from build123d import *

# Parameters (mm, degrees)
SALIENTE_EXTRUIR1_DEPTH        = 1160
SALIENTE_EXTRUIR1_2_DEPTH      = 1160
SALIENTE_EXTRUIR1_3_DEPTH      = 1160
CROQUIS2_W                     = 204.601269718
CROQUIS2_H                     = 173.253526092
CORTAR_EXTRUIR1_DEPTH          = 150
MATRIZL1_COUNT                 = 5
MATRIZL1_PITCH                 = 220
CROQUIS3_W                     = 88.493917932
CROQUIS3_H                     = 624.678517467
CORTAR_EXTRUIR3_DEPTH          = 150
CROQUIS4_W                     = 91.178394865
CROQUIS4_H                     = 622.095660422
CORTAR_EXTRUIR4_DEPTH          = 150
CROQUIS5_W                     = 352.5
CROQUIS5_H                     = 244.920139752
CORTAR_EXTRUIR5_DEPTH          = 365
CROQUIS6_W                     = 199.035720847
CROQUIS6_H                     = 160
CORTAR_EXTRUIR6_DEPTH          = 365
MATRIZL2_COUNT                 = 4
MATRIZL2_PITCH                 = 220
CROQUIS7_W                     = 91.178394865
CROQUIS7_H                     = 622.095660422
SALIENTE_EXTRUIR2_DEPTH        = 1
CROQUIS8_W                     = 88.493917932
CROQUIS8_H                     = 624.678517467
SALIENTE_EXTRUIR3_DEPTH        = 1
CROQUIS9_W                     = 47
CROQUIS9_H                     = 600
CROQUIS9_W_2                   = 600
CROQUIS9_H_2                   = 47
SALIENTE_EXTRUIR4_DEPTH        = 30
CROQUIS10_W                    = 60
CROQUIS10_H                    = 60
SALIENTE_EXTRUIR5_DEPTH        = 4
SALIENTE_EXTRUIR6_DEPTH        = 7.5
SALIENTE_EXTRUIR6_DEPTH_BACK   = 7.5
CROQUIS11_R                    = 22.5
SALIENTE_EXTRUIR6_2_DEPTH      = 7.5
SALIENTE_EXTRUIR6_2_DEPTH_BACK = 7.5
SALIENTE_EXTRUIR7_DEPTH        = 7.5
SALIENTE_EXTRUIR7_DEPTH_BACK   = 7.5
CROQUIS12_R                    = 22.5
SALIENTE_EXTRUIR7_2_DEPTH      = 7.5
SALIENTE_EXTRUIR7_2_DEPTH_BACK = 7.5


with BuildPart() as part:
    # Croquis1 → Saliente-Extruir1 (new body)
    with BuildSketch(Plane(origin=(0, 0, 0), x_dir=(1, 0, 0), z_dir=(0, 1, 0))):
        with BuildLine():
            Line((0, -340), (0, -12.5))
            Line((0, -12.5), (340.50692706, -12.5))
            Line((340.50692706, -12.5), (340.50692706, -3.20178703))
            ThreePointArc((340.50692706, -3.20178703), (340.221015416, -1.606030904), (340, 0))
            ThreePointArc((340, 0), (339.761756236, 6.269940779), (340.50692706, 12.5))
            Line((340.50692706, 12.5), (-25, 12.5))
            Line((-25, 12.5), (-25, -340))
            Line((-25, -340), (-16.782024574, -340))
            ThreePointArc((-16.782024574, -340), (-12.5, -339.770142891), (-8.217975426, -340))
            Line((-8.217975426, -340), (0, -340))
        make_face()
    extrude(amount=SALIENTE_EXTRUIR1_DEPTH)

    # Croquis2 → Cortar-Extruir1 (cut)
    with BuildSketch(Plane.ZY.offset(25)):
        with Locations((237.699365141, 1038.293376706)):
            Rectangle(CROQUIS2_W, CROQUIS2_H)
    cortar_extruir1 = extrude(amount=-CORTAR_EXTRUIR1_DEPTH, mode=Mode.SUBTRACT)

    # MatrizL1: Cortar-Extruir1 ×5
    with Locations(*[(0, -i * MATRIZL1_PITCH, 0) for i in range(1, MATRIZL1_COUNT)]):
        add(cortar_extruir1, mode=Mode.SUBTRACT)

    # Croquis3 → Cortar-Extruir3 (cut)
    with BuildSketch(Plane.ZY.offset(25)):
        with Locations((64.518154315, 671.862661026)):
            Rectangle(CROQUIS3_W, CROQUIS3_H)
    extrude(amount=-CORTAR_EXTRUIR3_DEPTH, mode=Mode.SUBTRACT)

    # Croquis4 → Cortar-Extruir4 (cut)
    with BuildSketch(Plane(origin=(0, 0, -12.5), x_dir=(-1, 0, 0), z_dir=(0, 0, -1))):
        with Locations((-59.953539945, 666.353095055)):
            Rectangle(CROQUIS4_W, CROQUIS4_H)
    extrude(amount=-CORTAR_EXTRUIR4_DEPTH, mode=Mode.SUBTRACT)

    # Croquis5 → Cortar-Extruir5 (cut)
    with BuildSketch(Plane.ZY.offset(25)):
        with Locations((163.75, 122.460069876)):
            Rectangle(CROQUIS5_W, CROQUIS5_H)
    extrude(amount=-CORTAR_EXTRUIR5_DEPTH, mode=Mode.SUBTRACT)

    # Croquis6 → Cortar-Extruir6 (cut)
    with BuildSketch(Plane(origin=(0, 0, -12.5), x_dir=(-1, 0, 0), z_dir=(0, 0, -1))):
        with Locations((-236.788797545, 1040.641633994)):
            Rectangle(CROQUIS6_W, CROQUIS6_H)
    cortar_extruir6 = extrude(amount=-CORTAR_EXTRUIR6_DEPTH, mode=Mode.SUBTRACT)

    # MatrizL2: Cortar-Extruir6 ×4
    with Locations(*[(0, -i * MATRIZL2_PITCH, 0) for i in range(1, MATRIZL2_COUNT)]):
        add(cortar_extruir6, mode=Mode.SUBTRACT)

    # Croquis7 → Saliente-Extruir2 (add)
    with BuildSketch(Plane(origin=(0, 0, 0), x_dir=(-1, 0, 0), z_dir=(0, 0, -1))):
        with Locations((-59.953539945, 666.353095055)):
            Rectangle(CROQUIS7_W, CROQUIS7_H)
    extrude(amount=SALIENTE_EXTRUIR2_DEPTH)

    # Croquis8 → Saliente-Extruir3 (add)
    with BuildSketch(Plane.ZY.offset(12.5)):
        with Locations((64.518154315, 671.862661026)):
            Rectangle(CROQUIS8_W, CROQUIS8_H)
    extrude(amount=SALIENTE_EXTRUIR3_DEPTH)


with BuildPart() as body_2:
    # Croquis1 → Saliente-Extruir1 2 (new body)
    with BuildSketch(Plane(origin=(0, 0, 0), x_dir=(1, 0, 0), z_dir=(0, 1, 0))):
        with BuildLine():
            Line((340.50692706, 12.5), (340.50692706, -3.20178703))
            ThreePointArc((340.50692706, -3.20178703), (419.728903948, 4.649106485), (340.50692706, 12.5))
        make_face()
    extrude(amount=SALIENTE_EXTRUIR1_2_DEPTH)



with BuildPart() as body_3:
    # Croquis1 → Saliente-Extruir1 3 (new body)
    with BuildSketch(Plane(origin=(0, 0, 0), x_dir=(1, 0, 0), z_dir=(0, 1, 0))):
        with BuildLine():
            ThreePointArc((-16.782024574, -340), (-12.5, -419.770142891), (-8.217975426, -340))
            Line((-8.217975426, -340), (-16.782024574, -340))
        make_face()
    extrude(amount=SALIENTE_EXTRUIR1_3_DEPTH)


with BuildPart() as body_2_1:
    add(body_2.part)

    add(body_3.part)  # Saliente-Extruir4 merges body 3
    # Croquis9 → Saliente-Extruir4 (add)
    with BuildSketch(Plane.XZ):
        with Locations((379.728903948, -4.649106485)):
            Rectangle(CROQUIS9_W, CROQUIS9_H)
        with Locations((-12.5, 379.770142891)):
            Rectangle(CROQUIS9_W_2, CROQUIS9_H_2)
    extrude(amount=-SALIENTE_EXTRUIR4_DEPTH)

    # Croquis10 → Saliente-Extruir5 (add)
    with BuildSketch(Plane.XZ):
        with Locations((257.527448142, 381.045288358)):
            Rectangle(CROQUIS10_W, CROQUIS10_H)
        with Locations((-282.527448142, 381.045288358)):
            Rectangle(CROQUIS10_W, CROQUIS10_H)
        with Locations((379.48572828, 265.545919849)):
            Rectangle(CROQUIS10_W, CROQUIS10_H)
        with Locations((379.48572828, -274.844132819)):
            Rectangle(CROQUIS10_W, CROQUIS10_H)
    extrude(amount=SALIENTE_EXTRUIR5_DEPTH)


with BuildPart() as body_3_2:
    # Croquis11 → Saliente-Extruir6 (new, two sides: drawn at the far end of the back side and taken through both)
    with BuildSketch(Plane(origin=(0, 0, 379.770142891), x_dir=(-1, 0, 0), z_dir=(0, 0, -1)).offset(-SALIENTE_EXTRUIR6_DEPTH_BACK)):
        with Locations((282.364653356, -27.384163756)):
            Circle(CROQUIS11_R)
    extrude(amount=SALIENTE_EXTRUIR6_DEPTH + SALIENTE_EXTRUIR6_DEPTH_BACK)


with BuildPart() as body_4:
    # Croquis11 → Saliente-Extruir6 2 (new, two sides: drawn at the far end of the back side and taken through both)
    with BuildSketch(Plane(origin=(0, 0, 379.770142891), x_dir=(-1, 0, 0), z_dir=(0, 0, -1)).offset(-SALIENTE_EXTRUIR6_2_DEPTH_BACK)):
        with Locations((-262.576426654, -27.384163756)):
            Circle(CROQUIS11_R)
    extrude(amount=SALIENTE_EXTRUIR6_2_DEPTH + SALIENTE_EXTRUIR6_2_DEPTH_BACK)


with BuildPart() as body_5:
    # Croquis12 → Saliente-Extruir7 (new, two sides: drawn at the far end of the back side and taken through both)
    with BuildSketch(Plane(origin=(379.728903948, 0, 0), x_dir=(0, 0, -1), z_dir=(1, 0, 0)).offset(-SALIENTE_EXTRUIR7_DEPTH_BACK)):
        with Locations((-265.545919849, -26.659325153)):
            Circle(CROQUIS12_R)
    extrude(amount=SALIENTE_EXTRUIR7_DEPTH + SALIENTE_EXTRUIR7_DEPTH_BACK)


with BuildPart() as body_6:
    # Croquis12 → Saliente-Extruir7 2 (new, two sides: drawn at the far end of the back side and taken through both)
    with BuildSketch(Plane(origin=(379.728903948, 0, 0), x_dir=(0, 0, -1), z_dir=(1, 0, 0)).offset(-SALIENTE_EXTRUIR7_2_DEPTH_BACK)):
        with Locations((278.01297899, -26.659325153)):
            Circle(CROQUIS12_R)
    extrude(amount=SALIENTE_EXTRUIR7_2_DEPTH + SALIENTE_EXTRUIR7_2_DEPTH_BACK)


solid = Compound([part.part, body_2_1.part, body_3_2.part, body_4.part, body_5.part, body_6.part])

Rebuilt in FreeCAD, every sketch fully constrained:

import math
import FreeCAD as App
import Part
import Sketcher
Q = App.Units.Quantity


def add_polygon(sketch, points):
    """Adds a closed chain of lines whose ends are joined by coincident constraints."""
    first, n = sketch.GeometryCount, len(points)
    for a, b in zip(points, points[1:] + points[:1]):
        sketch.addGeometry(Part.LineSegment(App.Vector(*a, 0), App.Vector(*b, 0)), False)
    for i in range(n):
        sketch.addConstraint(Sketcher.Constraint("Coincident", first + i, 2, first + (i + 1) % n, 1))

doc = App.newDocument("Part")
params = doc.addObject("Spreadsheet::Sheet", "Params")
for row, (alias, value) in enumerate([
    ("sketch1_radius", "40 mm"),
    ("sketch1_height", "327.5 mm"),
    ("sketch1_height2", "352.5 mm"),
    ("pad1_length", "1160 mm"),
    ("pocket1_length", "150 mm"),
    ("linearpattern_pitch", "220 mm"),
    ("pocket2_length", "150 mm"),
    ("pocket3_length", "150 mm"),
    ("sketch5_height", "352.5 mm"),
    ("pocket4_length", "365 mm"),
    ("sketch6_height", "160 mm"),
    ("pocket5_length", "365 mm"),
    ("linearpattern2_pitch", "220 mm"),
    ("pad2_length", "1 mm"),
    ("pad3_length", "1 mm"),
    ("sketch9_radius", "40 mm"),
    ("pad4_length", "1160 mm"),
    ("sketch10_radius", "40 mm"),
    ("pad5_length", "1160 mm"),
    ("sketch11_width", "47 mm"),
    ("sketch11_width2", "600 mm"),
    ("pad6_length", "30 mm"),
    ("sketch12_width", "60 mm"),
    ("pad7_length", "4 mm"),
    ("sketch13_diameter", "45 mm"),
    ("pad8_length", "7.5 mm"),
    ("pad8_length2", "7.5 mm"),
    ("sketch14_diameter", "45 mm"),
    ("pad9_length", "7.5 mm"),
    ("pad9_length2", "7.5 mm"),
    ("sketch15_diameter", "45 mm"),
    ("pad10_length", "7.5 mm"),
    ("pad10_length2", "7.5 mm"),
    ("sketch16_diameter", "45 mm"),
    ("pad11_length", "7.5 mm"),
    ("pad11_length2", "7.5 mm"),
], start=1):
    params.set(f"A{row}", alias)
    params.set(f"B{row}", "=" + value)
    params.setAlias(f"B{row}", alias)

body = doc.addObject("PartDesign::Body", "Body")

sketch1 = body.newObject("Sketcher::SketchObject", "Sketch")
sketch1.AttachmentSupport = (doc.getObject("XZ_Plane"), [""])
sketch1.MapMode = "FlatFace"
sketch1.addGeometry(Part.LineSegment(App.Vector(0, 340, 0), App.Vector(0, 12.5, 0)), False)
sketch1.addGeometry(Part.LineSegment(App.Vector(0, 12.5, 0), App.Vector(340.506927, 12.5, 0)), False)
sketch1.addGeometry(Part.LineSegment(App.Vector(340.506927, 12.5, 0), App.Vector(340.506927, 3.201787, 0)), False)
sketch1.addGeometry(Part.ArcOfCircle(Part.Circle(App.Vector(379.728904, -4.649106, 0), App.Vector(0, 0, 1), 40), math.radians(168.68094), math.radians(173.32556)), False)
sketch1.addGeometry(Part.ArcOfCircle(Part.Circle(App.Vector(379.728904, -4.649106, 0), App.Vector(0, 0, 1), 40), math.radians(173.32556), math.radians(191.31906)), False)
sketch1.addGeometry(Part.LineSegment(App.Vector(340.506927, -12.5, 0), App.Vector(-25, -12.5, 0)), False)
sketch1.addGeometry(Part.LineSegment(App.Vector(-25, -12.5, 0), App.Vector(-25, 340, 0)), False)
sketch1.addGeometry(Part.LineSegment(App.Vector(-25, 340, 0), App.Vector(-16.782025, 340, 0)), False)
sketch1.addGeometry(Part.ArcOfCircle(Part.Circle(App.Vector(-12.5, 379.770143, 0), App.Vector(0, 0, 1), 40), math.radians(-96.145324), math.radians(-83.854676)), False)
sketch1.addGeometry(Part.LineSegment(App.Vector(-8.217975, 340, 0), App.Vector(0, 340, 0)), False)
sketch1.addConstraint(Sketcher.Constraint("Coincident", 0, 2, 1, 1))
sketch1.addConstraint(Sketcher.Constraint("Coincident", 1, 2, 2, 1))
sketch1.addConstraint(Sketcher.Constraint("Coincident", 2, 2, 3, 1))
sketch1.addConstraint(Sketcher.Constraint("Tangent", 3, 2, 4, 1))
sketch1.addConstraint(Sketcher.Constraint("Coincident", 4, 2, 5, 1))
sketch1.addConstraint(Sketcher.Constraint("Coincident", 5, 2, 6, 1))
sketch1.addConstraint(Sketcher.Constraint("Coincident", 6, 2, 7, 1))
sketch1.addConstraint(Sketcher.Constraint("Coincident", 7, 2, 8, 1))
sketch1.addConstraint(Sketcher.Constraint("Coincident", 8, 2, 9, 1))
sketch1.addConstraint(Sketcher.Constraint("Coincident", 9, 2, 0, 1))
sketch1.addConstraint(Sketcher.Constraint("Vertical", 0))
sketch1.addConstraint(Sketcher.Constraint("Horizontal", 1))
sketch1.addConstraint(Sketcher.Constraint("Vertical", 2))
sketch1.addConstraint(Sketcher.Constraint("Horizontal", 5))
sketch1.addConstraint(Sketcher.Constraint("Vertical", 6))
sketch1.addConstraint(Sketcher.Constraint("Horizontal", 7))
sketch1.addConstraint(Sketcher.Constraint("Horizontal", 9))
sketch1.addConstraint(Sketcher.Constraint("Equal", 3, 4))
sketch1.addConstraint(Sketcher.Constraint("Equal", 4, 8))
sketch1.addConstraint(Sketcher.Constraint("Symmetric", 1, 2, 4, 2, -1))
sketch1.addConstraint(Sketcher.Constraint("PointOnObject", 0, 2, -2))
sketch1.addConstraint(Sketcher.Constraint("PointOnObject", 3, 2, -1))
sketch1.addConstraint(Sketcher.Constraint("Horizontal", 7, 2, 8, 2))
sketch1.addConstraint(Sketcher.Constraint("Equal", 7, 9))
sketch1.addConstraint(Sketcher.Constraint("Radius", 3, Q("40 mm")))
sketch1.addConstraint(Sketcher.Constraint("DistanceY", 0, 2, 0, 1, Q("327.5 mm")))
sketch1.addConstraint(Sketcher.Constraint("DistanceY", 6, 1, 6, 2, Q("352.5 mm")))
sketch1.addConstraint(Sketcher.Constraint("DistanceX", -1, 1, 3, 2, Q("340 mm")))
sketch1.addConstraint(Sketcher.Constraint("DistanceX", 5, 2, -1, 1, Q("25 mm")))
sketch1.addConstraint(Sketcher.Constraint("DistanceX", 1, 1, 1, 2, Q("340.506927 mm")))
sketch1.addConstraint(Sketcher.Constraint("DistanceX", 7, 1, 7, 2, Q("8.217975 mm")))
sketch1.setExpression("Constraints[24]", "Params.sketch1_radius")
sketch1.setExpression("Constraints[25]", "Params.sketch1_height")
sketch1.setExpression("Constraints[26]", "Params.sketch1_height2")
pad1 = body.newObject("PartDesign::Pad", "Pad")
pad1.Profile = sketch1
pad1.setExpression("Length", "Params.pad1_length")
pad1.Reversed = True

sketch2 = body.newObject("Sketcher::SketchObject", "Sketch001")
sketch2.AttachmentSupport = (doc.getObject("YZ_Plane"), [""])
sketch2.MapMode = "FlatFace"
sketch2.AttachmentOffset = App.Placement(App.Vector(0, 0, -25), App.Rotation())
add_polygon(sketch2, [(1124.92014, 135.39873), (951.666614, 135.39873), (951.666614, 340), (1124.92014, 340)])
sketch2.addConstraint(Sketcher.Constraint("Horizontal", 0))
sketch2.addConstraint(Sketcher.Constraint("Vertical", 1))
sketch2.addConstraint(Sketcher.Constraint("Horizontal", 2))
sketch2.addConstraint(Sketcher.Constraint("Vertical", 3))
sketch2.addConstraint(Sketcher.Constraint("DistanceY", -1, 1, 1, 2, Q("340 mm")))
sketch2.addConstraint(Sketcher.Constraint("DistanceY", 1, 1, 1, 2, Q("204.60127 mm")))
sketch2.addConstraint(Sketcher.Constraint("DistanceX", 0, 2, 0, 1, Q("173.253526 mm")))
sketch2.addConstraint(Sketcher.Constraint("DistanceX", -1, 1, 2, 2, Q("1124.92014 mm")))
pocket1 = body.newObject("PartDesign::Pocket", "Pocket")
pocket1.Profile = sketch2
pocket1.setExpression("Length", "Params.pocket1_length")
pocket1.Reversed = True
doc.recompute()

linearpattern = body.newObject("PartDesign::LinearPattern", "LinearPattern")
linearpattern.Originals = [pocket1]
linearpattern.Direction = (doc.getObject("Y_Axis"), [""])
linearpattern.Mode = "offset"
linearpattern.setExpression("Offset", "Params.linearpattern_pitch")
linearpattern.Occurrences = 5
linearpattern.Reversed = True
body.Tip = linearpattern

sketch3 = body.newObject("Sketcher::SketchObject", "Sketch002")
sketch3.AttachmentSupport = (doc.getObject("YZ_Plane"), [""])
sketch3.MapMode = "FlatFace"
sketch3.AttachmentOffset = App.Placement(App.Vector(0, 0, -25), App.Rotation())
add_polygon(sketch3, [(984.20192, 20.271195), (359.523402, 20.271195), (359.523402, 108.765113), (984.20192, 108.765113)])
sketch3.addConstraint(Sketcher.Constraint("Horizontal", 0))
sketch3.addConstraint(Sketcher.Constraint("Vertical", 1))
sketch3.addConstraint(Sketcher.Constraint("Horizontal", 2))
sketch3.addConstraint(Sketcher.Constraint("Vertical", 3))
sketch3.addConstraint(Sketcher.Constraint("DistanceX", 0, 2, 0, 1, Q("624.678517 mm")))
sketch3.addConstraint(Sketcher.Constraint("DistanceY", 1, 1, 1, 2, Q("88.493918 mm")))
sketch3.addConstraint(Sketcher.Constraint("DistanceX", -1, 1, 2, 2, Q("984.20192 mm")))
sketch3.addConstraint(Sketcher.Constraint("DistanceY", -1, 1, 0, 2, Q("20.271195 mm")))
pocket2 = body.newObject("PartDesign::Pocket", "Pocket001")
pocket2.Profile = sketch3
pocket2.setExpression("Length", "Params.pocket2_length")
pocket2.Reversed = True

sketch4 = body.newObject("Sketcher::SketchObject", "Sketch003")
sketch4.AttachmentSupport = (doc.getObject("XY_Plane"), [""])
sketch4.MapMode = "FlatFace"
sketch4.AttachmentOffset = App.Placement(App.Vector(0, 0, -12.5), App.Rotation())
add_polygon(sketch4, [(105.542737, 977.400925), (105.542737, 355.305265), (14.364343, 355.305265), (14.364343, 977.400925)])
sketch4.addConstraint(Sketcher.Constraint("Vertical", 0))
sketch4.addConstraint(Sketcher.Constraint("Horizontal", 1))
sketch4.addConstraint(Sketcher.Constraint("Vertical", 2))
sketch4.addConstraint(Sketcher.Constraint("Horizontal", 3))
sketch4.addConstraint(Sketcher.Constraint("DistanceY", 0, 2, 0, 1, Q("622.09566 mm")))
sketch4.addConstraint(Sketcher.Constraint("DistanceX", 1, 2, 1, 1, Q("91.178395 mm")))
sketch4.addConstraint(Sketcher.Constraint("DistanceX", -1, 1, 0, 2, Q("105.542737 mm")))
sketch4.addConstraint(Sketcher.Constraint("DistanceY", -1, 1, 0, 2, Q("355.305265 mm")))
pocket3 = body.newObject("PartDesign::Pocket", "Pocket002")
pocket3.Profile = sketch4
pocket3.setExpression("Length", "Params.pocket3_length")
pocket3.Reversed = True

sketch5 = body.newObject("Sketcher::SketchObject", "Sketch004")
sketch5.AttachmentSupport = (doc.getObject("YZ_Plane"), [""])
sketch5.MapMode = "FlatFace"
sketch5.AttachmentOffset = App.Placement(App.Vector(0, 0, -25), App.Rotation())
add_polygon(sketch5, [(244.92014, -12.5), (0, -12.5), (0, 340), (244.92014, 340)])
sketch5.addConstraint(Sketcher.Constraint("Horizontal", 0))
sketch5.addConstraint(Sketcher.Constraint("Vertical", 1))
sketch5.addConstraint(Sketcher.Constraint("Horizontal", 2))
sketch5.addConstraint(Sketcher.Constraint("Vertical", 3))
sketch5.addConstraint(Sketcher.Constraint("PointOnObject", 0, 2, -2))
sketch5.addConstraint(Sketcher.Constraint("DistanceY", 1, 1, 1, 2, Q("352.5 mm")))
sketch5.addConstraint(Sketcher.Constraint("DistanceY", -1, 1, 1, 2, Q("340 mm")))
sketch5.addConstraint(Sketcher.Constraint("DistanceX", 0, 2, 0, 1, Q("244.92014 mm")))
sketch5.setExpression("Constraints[9]", "Params.sketch5_height")
pocket4 = body.newObject("PartDesign::Pocket", "Pocket003")
pocket4.Profile = sketch5
pocket4.setExpression("Length", "Params.pocket4_length")
pocket4.Reversed = True

sketch6 = body.newObject("Sketcher::SketchObject", "Sketch005")
sketch6.AttachmentSupport = (doc.getObject("XY_Plane"), [""])
sketch6.MapMode = "FlatFace"
sketch6.AttachmentOffset = App.Placement(App.Vector(0, 0, -12.5), App.Rotation())
add_polygon(sketch6, [(336.306658, 1120.641634), (336.306658, 960.641634), (137.270937, 960.641634), (137.270937, 1120.641634)])
sketch6.addConstraint(Sketcher.Constraint("Vertical", 0))
sketch6.addConstraint(Sketcher.Constraint("Horizontal", 1))
sketch6.addConstraint(Sketcher.Constraint("Vertical", 2))
sketch6.addConstraint(Sketcher.Constraint("Horizontal", 3))
sketch6.addConstraint(Sketcher.Constraint("DistanceY", 0, 2, 0, 1, Q("160 mm")))
sketch6.addConstraint(Sketcher.Constraint("DistanceX", 1, 2, 1, 1, Q("199.035721 mm")))
sketch6.addConstraint(Sketcher.Constraint("DistanceX", -1, 1, 0, 2, Q("336.306658 mm")))
sketch6.addConstraint(Sketcher.Constraint("DistanceY", -1, 1, 0, 2, Q("960.641634 mm")))
sketch6.setExpression("Constraints[8]", "Params.sketch6_height")
pocket5 = body.newObject("PartDesign::Pocket", "Pocket004")
pocket5.Profile = sketch6
pocket5.setExpression("Length", "Params.pocket5_length")
pocket5.Reversed = True
doc.recompute()

linearpattern2 = body.newObject("PartDesign::LinearPattern", "LinearPattern001")
linearpattern2.Originals = [pocket5]
linearpattern2.Direction = (doc.getObject("Y_Axis"), [""])
linearpattern2.Mode = "offset"
linearpattern2.setExpression("Offset", "Params.linearpattern2_pitch")
linearpattern2.Occurrences = 4
linearpattern2.Reversed = True
body.Tip = linearpattern2

sketch7 = body.newObject("Sketcher::SketchObject", "Sketch006")
sketch7.AttachmentSupport = (doc.getObject("XY_Plane"), [""])
sketch7.MapMode = "FlatFace"
add_polygon(sketch7, [(105.542737, 977.400925), (105.542737, 355.305265), (14.364343, 355.305265), (14.364343, 977.400925)])
sketch7.addConstraint(Sketcher.Constraint("Vertical", 0))
sketch7.addConstraint(Sketcher.Constraint("Horizontal", 1))
sketch7.addConstraint(Sketcher.Constraint("Vertical", 2))
sketch7.addConstraint(Sketcher.Constraint("Horizontal", 3))
sketch7.addConstraint(Sketcher.Constraint("DistanceY", 0, 2, 0, 1, Q("622.09566 mm")))
sketch7.addConstraint(Sketcher.Constraint("DistanceX", 1, 2, 1, 1, Q("91.178395 mm")))
sketch7.addConstraint(Sketcher.Constraint("DistanceX", -1, 1, 0, 2, Q("105.542737 mm")))
sketch7.addConstraint(Sketcher.Constraint("DistanceY", -1, 1, 0, 2, Q("355.305265 mm")))
pad2 = body.newObject("PartDesign::Pad", "Pad001")
pad2.Profile = sketch7
pad2.setExpression("Length", "Params.pad2_length")
pad2.Reversed = True

sketch8 = body.newObject("Sketcher::SketchObject", "Sketch007")
sketch8.AttachmentSupport = (doc.getObject("YZ_Plane"), [""])
sketch8.MapMode = "FlatFace"
sketch8.AttachmentOffset = App.Placement(App.Vector(0, 0, -12.5), App.Rotation())
add_polygon(sketch8, [(984.20192, 20.271195), (359.523402, 20.271195), (359.523402, 108.765113), (984.20192, 108.765113)])
sketch8.addConstraint(Sketcher.Constraint("Horizontal", 0))
sketch8.addConstraint(Sketcher.Constraint("Vertical", 1))
sketch8.addConstraint(Sketcher.Constraint("Horizontal", 2))
sketch8.addConstraint(Sketcher.Constraint("Vertical", 3))
sketch8.addConstraint(Sketcher.Constraint("DistanceX", 0, 2, 0, 1, Q("624.678517 mm")))
sketch8.addConstraint(Sketcher.Constraint("DistanceY", 1, 1, 1, 2, Q("88.493918 mm")))
sketch8.addConstraint(Sketcher.Constraint("DistanceX", -1, 1, 2, 2, Q("984.20192 mm")))
sketch8.addConstraint(Sketcher.Constraint("DistanceY", -1, 1, 0, 2, Q("20.271195 mm")))
pad3 = body.newObject("PartDesign::Pad", "Pad002")
pad3.Profile = sketch8
pad3.setExpression("Length", "Params.pad3_length")
pad3.Reversed = True
body2 = doc.addObject("PartDesign::Body", "Body001")

sketch9 = body2.newObject("Sketcher::SketchObject", "Sketch008")
sketch9.AttachmentSupport = (doc.getObject("XZ_Plane001"), [""])
sketch9.MapMode = "FlatFace"
sketch9.addGeometry(Part.LineSegment(App.Vector(340.506927, -12.5, 0), App.Vector(340.506927, 3.201787, 0)), False)
sketch9.addGeometry(Part.ArcOfCircle(Part.Circle(App.Vector(379.728904, -4.649106, 0), App.Vector(0, 0, 1), 40), math.radians(-168.68094), math.radians(168.68094)), False)
sketch9.addConstraint(Sketcher.Constraint("Coincident", 0, 1, 1, 1))
sketch9.addConstraint(Sketcher.Constraint("Coincident", 1, 2, 0, 2))
sketch9.addConstraint(Sketcher.Constraint("Vertical", 0))
sketch9.addConstraint(Sketcher.Constraint("Radius", 1, Q("40 mm")))
sketch9.addConstraint(Sketcher.Constraint("DistanceY", 0, 1, -1, 1, Q("12.5 mm")))
sketch9.addConstraint(Sketcher.Constraint("DistanceY", 0, 1, 0, 2, Q("15.701787 mm")))
sketch9.addConstraint(Sketcher.Constraint("DistanceX", -1, 1, 1, 3, Q("379.728904 mm")))
sketch9.setExpression("Constraints[3]", "Params.sketch9_radius")
pad4 = body2.newObject("PartDesign::Pad", "Pad003")
pad4.Profile = sketch9
pad4.setExpression("Length", "Params.pad4_length")
pad4.Reversed = True
body3 = doc.addObject("PartDesign::Body", "Body002")

sketch10 = body3.newObject("Sketcher::SketchObject", "Sketch009")
sketch10.AttachmentSupport = (doc.getObject("XZ_Plane002"), [""])
sketch10.MapMode = "FlatFace"
sketch10.addGeometry(Part.ArcOfCircle(Part.Circle(App.Vector(-12.5, 379.770143, 0), App.Vector(0, 0, 1), 40), math.radians(-83.854676), math.radians(263.854676)), False)
sketch10.addGeometry(Part.LineSegment(App.Vector(-8.217975, 340, 0), App.Vector(-16.782025, 340, 0)), False)
sketch10.addConstraint(Sketcher.Constraint("Coincident", 0, 1, 1, 1))
sketch10.addConstraint(Sketcher.Constraint("Coincident", 1, 2, 0, 2))
sketch10.addConstraint(Sketcher.Constraint("Horizontal", 1))
sketch10.addConstraint(Sketcher.Constraint("Radius", 0, Q("40 mm")))
sketch10.addConstraint(Sketcher.Constraint("DistanceY", -1, 1, 0, 1, Q("340 mm")))
sketch10.addConstraint(Sketcher.Constraint("DistanceX", 0, 3, -1, 1, Q("12.5 mm")))
sketch10.addConstraint(Sketcher.Constraint("DistanceX", 1, 2, 1, 1, Q("8.564049 mm")))
sketch10.setExpression("Constraints[3]", "Params.sketch10_radius")
pad5 = body3.newObject("PartDesign::Pad", "Pad004")
pad5.Profile = sketch10
pad5.setExpression("Length", "Params.pad5_length")
pad5.Reversed = True
body2.AllowCompound = True
doc.recompute()

boolean = body2.newObject("PartDesign::Boolean", "Boolean")
boolean.Type = "Fuse"
boolean.addObjects([body3])

sketch11 = body2.newObject("Sketcher::SketchObject", "Sketch010")
sketch11.AttachmentSupport = (doc.getObject("XZ_Plane001"), [""])
sketch11.MapMode = "FlatFace"
add_polygon(sketch11, [(356.228904, 295.350894), (356.228904, -304.649106), (403.228904, -304.649106), (403.228904, 295.350894)])
add_polygon(sketch11, [(-312.5, 403.270143), (-312.5, 356.270143), (287.5, 356.270143), (287.5, 403.270143)])
sketch11.addConstraint(Sketcher.Constraint("Vertical", 0))
sketch11.addConstraint(Sketcher.Constraint("Horizontal", 1))
sketch11.addConstraint(Sketcher.Constraint("Vertical", 2))
sketch11.addConstraint(Sketcher.Constraint("Horizontal", 3))
sketch11.addConstraint(Sketcher.Constraint("Vertical", 4))
sketch11.addConstraint(Sketcher.Constraint("Horizontal", 5))
sketch11.addConstraint(Sketcher.Constraint("Vertical", 6))
sketch11.addConstraint(Sketcher.Constraint("Horizontal", 7))
sketch11.addConstraint(Sketcher.Constraint("Equal", 7, 0))
sketch11.addConstraint(Sketcher.Constraint("Equal", 3, 4))
sketch11.addConstraint(Sketcher.Constraint("DistanceX", 1, 1, 1, 2, Q("47 mm")))
sketch11.addConstraint(Sketcher.Constraint("DistanceX", 5, 1, 5, 2, Q("600 mm")))
sketch11.addConstraint(Sketcher.Constraint("DistanceX", 4, 2, -1, 1, Q("312.5 mm")))
sketch11.addConstraint(Sketcher.Constraint("DistanceY", 3, 2, 4, 2, Q("60.919249 mm")))
sketch11.addConstraint(Sketcher.Constraint("DistanceX", -1, 1, 0, 2, Q("356.228904 mm")))
sketch11.addConstraint(Sketcher.Constraint("DistanceY", 0, 2, -1, 1, Q("304.649106 mm")))
sketch11.setExpression("Constraints[18]", "Params.sketch11_width")
sketch11.setExpression("Constraints[19]", "Params.sketch11_width2")
pad6 = body2.newObject("PartDesign::Pad", "Pad005")
pad6.Profile = sketch11
pad6.setExpression("Length", "Params.pad6_length")
pad6.Reversed = True

sketch12 = body2.newObject("Sketcher::SketchObject", "Sketch011")
sketch12.AttachmentSupport = (doc.getObject("XZ_Plane001"), [""])
sketch12.MapMode = "FlatFace"
add_polygon(sketch12, [(227.527448, 411.045288), (227.527448, 351.045288), (287.527448, 351.045288), (287.527448, 411.045288)])
add_polygon(sketch12, [(-312.527448, 411.045288), (-312.527448, 351.045288), (-252.527448, 351.045288), (-252.527448, 411.045288)])
add_polygon(sketch12, [(349.485728, 295.54592), (349.485728, 235.54592), (409.485728, 235.54592), (409.485728, 295.54592)])
add_polygon(sketch12, [(349.485728, -244.844133), (349.485728, -304.844133), (409.485728, -304.844133), (409.485728, -244.844133)])
sketch12.addConstraint(Sketcher.Constraint("Vertical", 0))
sketch12.addConstraint(Sketcher.Constraint("Horizontal", 1))
sketch12.addConstraint(Sketcher.Constraint("Vertical", 2))
sketch12.addConstraint(Sketcher.Constraint("Horizontal", 3))
sketch12.addConstraint(Sketcher.Constraint("Vertical", 4))
sketch12.addConstraint(Sketcher.Constraint("Horizontal", 5))
sketch12.addConstraint(Sketcher.Constraint("Vertical", 6))
sketch12.addConstraint(Sketcher.Constraint("Horizontal", 7))
sketch12.addConstraint(Sketcher.Constraint("Vertical", 8))
sketch12.addConstraint(Sketcher.Constraint("Horizontal", 9))
sketch12.addConstraint(Sketcher.Constraint("Vertical", 10))
sketch12.addConstraint(Sketcher.Constraint("Horizontal", 11))
sketch12.addConstraint(Sketcher.Constraint("Vertical", 12))
sketch12.addConstraint(Sketcher.Constraint("Horizontal", 13))
sketch12.addConstraint(Sketcher.Constraint("Vertical", 14))
sketch12.addConstraint(Sketcher.Constraint("Horizontal", 15))
sketch12.addConstraint(Sketcher.Constraint("Horizontal", 1, 2, 4, 2))
sketch12.addConstraint(Sketcher.Constraint("Horizontal", 3, 2, 6, 2))
sketch12.addConstraint(Sketcher.Constraint("Vertical", 11, 2, 12, 2))
sketch12.addConstraint(Sketcher.Constraint("Vertical", 10, 2, 13, 2))
sketch12.addConstraint(Sketcher.Constraint("Equal", 3, 5))
sketch12.addConstraint(Sketcher.Constraint("Equal", 7, 9))
sketch12.addConstraint(Sketcher.Constraint("Equal", 15, 0))
sketch12.addConstraint(Sketcher.Constraint("Equal", 6, 8))
sketch12.addConstraint(Sketcher.Constraint("Equal", 10, 12))
sketch12.addConstraint(Sketcher.Constraint("DistanceX", 1, 1, 1, 2, Q("60 mm")))
sketch12.addConstraint(Sketcher.Constraint("DistanceX", -1, 1, 0, 2, Q("227.527448 mm")))
sketch12.addConstraint(Sketcher.Constraint("DistanceY", -1, 1, 0, 2, Q("351.045288 mm")))
sketch12.addConstraint(Sketcher.Constraint("DistanceX", 4, 2, -1, 1, Q("312.527448 mm")))
sketch12.addConstraint(Sketcher.Constraint("DistanceX", -1, 1, 8, 2, Q("349.485728 mm")))
sketch12.addConstraint(Sketcher.Constraint("DistanceY", -1, 1, 8, 2, Q("235.54592 mm")))
sketch12.addConstraint(Sketcher.Constraint("DistanceY", 12, 2, 1, 2, Q("655.889421 mm")))
sketch12.setExpression("Constraints[41]", "Params.sketch12_width")
pad7 = body2.newObject("PartDesign::Pad", "Pad006")
pad7.Profile = sketch12
pad7.setExpression("Length", "Params.pad7_length")
body4 = doc.addObject("PartDesign::Body", "Body003")

sketch13 = body4.newObject("Sketcher::SketchObject", "Sketch012")
sketch13.AttachmentSupport = (doc.getObject("XY_Plane003"), [""])
sketch13.MapMode = "FlatFace"
sketch13.AttachmentOffset = App.Placement(App.Vector(0, 0, 379.770143), App.Rotation())
sketch13.addGeometry(Part.Circle(App.Vector(-282.364653, -27.384164, 0), App.Vector(0, 0, 1), 22.5), False)
sketch13.addConstraint(Sketcher.Constraint("Diameter", 0, Q("45 mm")))
sketch13.addConstraint(Sketcher.Constraint("DistanceX", 0, 3, -1, 1, Q("282.364653 mm")))
sketch13.addConstraint(Sketcher.Constraint("DistanceY", 0, 3, -1, 1, Q("27.384164 mm")))
sketch13.setExpression("Constraints[0]", "Params.sketch13_diameter")
pad8 = body4.newObject("PartDesign::Pad", "Pad007")
pad8.Profile = sketch13
pad8.Type = "TwoLengths"
pad8.setExpression("Length", "Params.pad8_length")
pad8.setExpression("Length2", "Params.pad8_length2")
pad8.Reversed = True
body5 = doc.addObject("PartDesign::Body", "Body004")

sketch14 = body5.newObject("Sketcher::SketchObject", "Sketch013")
sketch14.AttachmentSupport = (doc.getObject("XY_Plane004"), [""])
sketch14.MapMode = "FlatFace"
sketch14.AttachmentOffset = App.Placement(App.Vector(0, 0, 379.770143), App.Rotation())
sketch14.addGeometry(Part.Circle(App.Vector(262.576427, -27.384164, 0), App.Vector(0, 0, 1), 22.5), False)
sketch14.addConstraint(Sketcher.Constraint("Diameter", 0, Q("45 mm")))
sketch14.addConstraint(Sketcher.Constraint("DistanceX", -1, 1, 0, 3, Q("262.576427 mm")))
sketch14.addConstraint(Sketcher.Constraint("DistanceY", 0, 3, -1, 1, Q("27.384164 mm")))
sketch14.setExpression("Constraints[0]", "Params.sketch14_diameter")
pad9 = body5.newObject("PartDesign::Pad", "Pad008")
pad9.Profile = sketch14
pad9.Type = "TwoLengths"
pad9.setExpression("Length", "Params.pad9_length")
pad9.setExpression("Length2", "Params.pad9_length2")
pad9.Reversed = True
body6 = doc.addObject("PartDesign::Body", "Body005")

sketch15 = body6.newObject("Sketcher::SketchObject", "Sketch014")
sketch15.AttachmentSupport = (doc.getObject("YZ_Plane005"), [""])
sketch15.MapMode = "FlatFace"
sketch15.AttachmentOffset = App.Placement(App.Vector(0, 0, 379.728904), App.Rotation())
sketch15.addGeometry(Part.Circle(App.Vector(-26.659325, 265.54592, 0), App.Vector(0, 0, 1), 22.5), False)
sketch15.addConstraint(Sketcher.Constraint("Diameter", 0, Q("45 mm")))
sketch15.addConstraint(Sketcher.Constraint("DistanceY", -1, 1, 0, 3, Q("265.54592 mm")))
sketch15.addConstraint(Sketcher.Constraint("DistanceX", 0, 3, -1, 1, Q("26.659325 mm")))
sketch15.setExpression("Constraints[0]", "Params.sketch15_diameter")
pad10 = body6.newObject("PartDesign::Pad", "Pad009")
pad10.Profile = sketch15
pad10.Type = "TwoLengths"
pad10.setExpression("Length", "Params.pad10_length")
pad10.setExpression("Length2", "Params.pad10_length2")
body7 = doc.addObject("PartDesign::Body", "Body006")

sketch16 = body7.newObject("Sketcher::SketchObject", "Sketch015")
sketch16.AttachmentSupport = (doc.getObject("YZ_Plane006"), [""])
sketch16.MapMode = "FlatFace"
sketch16.AttachmentOffset = App.Placement(App.Vector(0, 0, 379.728904), App.Rotation())
sketch16.addGeometry(Part.Circle(App.Vector(-26.659325, -278.012979, 0), App.Vector(0, 0, 1), 22.5), False)
sketch16.addConstraint(Sketcher.Constraint("Diameter", 0, Q("45 mm")))
sketch16.addConstraint(Sketcher.Constraint("DistanceY", 0, 3, -1, 1, Q("278.012979 mm")))
sketch16.addConstraint(Sketcher.Constraint("DistanceX", 0, 3, -1, 1, Q("26.659325 mm")))
sketch16.setExpression("Constraints[0]", "Params.sketch16_diameter")
pad11 = body7.newObject("PartDesign::Pad", "Pad010")
pad11.Profile = sketch16
pad11.Type = "TwoLengths"
pad11.setExpression("Length", "Params.pad11_length")
pad11.setExpression("Length2", "Params.pad11_length2")

doc.recompute()
